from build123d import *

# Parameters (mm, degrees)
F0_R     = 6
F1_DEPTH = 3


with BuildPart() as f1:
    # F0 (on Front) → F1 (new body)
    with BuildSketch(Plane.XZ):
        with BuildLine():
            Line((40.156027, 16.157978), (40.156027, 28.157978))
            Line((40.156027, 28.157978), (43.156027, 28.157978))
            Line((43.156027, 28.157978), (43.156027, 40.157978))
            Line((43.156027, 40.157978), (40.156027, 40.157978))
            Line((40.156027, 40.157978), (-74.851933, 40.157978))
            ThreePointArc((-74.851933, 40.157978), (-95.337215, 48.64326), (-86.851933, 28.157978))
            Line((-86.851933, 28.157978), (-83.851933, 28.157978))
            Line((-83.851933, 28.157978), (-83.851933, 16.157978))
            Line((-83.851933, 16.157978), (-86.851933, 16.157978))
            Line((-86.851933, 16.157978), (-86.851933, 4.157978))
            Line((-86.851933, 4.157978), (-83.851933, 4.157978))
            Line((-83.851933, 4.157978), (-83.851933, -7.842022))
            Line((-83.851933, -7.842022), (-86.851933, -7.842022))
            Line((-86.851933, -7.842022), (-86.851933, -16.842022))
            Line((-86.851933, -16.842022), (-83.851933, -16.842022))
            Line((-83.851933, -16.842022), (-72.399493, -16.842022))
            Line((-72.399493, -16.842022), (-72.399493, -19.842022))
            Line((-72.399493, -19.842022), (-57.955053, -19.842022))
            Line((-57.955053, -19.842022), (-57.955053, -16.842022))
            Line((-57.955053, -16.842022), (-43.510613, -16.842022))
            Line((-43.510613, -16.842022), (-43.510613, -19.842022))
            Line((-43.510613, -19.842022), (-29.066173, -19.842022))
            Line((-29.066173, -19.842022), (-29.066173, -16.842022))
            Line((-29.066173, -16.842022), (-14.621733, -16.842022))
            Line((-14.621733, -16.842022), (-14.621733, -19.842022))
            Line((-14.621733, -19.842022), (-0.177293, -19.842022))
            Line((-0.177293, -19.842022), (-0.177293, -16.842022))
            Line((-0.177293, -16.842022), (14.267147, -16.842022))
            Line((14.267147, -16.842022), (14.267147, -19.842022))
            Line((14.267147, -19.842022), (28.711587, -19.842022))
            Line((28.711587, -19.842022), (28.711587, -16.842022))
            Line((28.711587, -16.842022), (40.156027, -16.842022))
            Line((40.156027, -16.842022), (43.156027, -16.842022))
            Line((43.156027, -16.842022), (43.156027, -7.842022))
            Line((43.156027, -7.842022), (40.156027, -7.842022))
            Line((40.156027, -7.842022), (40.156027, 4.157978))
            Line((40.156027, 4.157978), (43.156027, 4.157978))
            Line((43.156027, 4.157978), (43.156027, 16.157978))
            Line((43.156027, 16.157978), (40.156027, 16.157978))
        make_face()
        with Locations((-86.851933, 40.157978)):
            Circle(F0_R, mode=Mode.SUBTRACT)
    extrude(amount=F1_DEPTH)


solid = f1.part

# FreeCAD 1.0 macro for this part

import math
import FreeCAD as App
import Part
import Sketcher

V = App.Vector

doc = App.newDocument("Part")
body = doc.addObject("PartDesign::Body", "Body")

# Sketch on XZ plane
sketch1 = doc.addObject("Sketcher::SketchObject", "Sketch")
body.addObject(sketch1)
sketch1.AttachmentSupport = (doc.XZ_Plane, [""])
sketch1.MapMode = "FlatFace"
sketch1.addGeometry([
    Part.LineSegment(V(40.156027, 16.157978, 0), V(40.156027, 28.157978, 0)),  # 0
    Part.LineSegment(V(40.156027, 28.157978, 0), V(43.156027, 28.157978, 0)),  # 1
    Part.LineSegment(V(43.156027, 28.157978, 0), V(43.156027, 40.157978, 0)),  # 2
    Part.LineSegment(V(43.156027, 40.157978, 0), V(-74.851933, 40.157978, 0)),  # 3
    Part.ArcOfCircle(Part.Circle(V(-86.851933, 40.157978, 0), V(0, 0, 1), 12), math.radians(-0.000002), math.radians(270.000002)),  # 4
    Part.LineSegment(V(-86.851933, 28.157978, 0), V(-83.851933, 28.157978, 0)),  # 5
    Part.LineSegment(V(-83.851933, 28.157978, 0), V(-83.851933, 16.157978, 0)),  # 6
    Part.LineSegment(V(-83.851933, 16.157978, 0), V(-86.851933, 16.157978, 0)),  # 7
    Part.LineSegment(V(-86.851933, 16.157978, 0), V(-86.851933, 4.157978, 0)),  # 8
    Part.LineSegment(V(-86.851933, 4.157978, 0), V(-83.851933, 4.157978, 0)),  # 9
    Part.LineSegment(V(-83.851933, 4.157978, 0), V(-83.851933, -7.842022, 0)),  # 10
    Part.LineSegment(V(-83.851933, -7.842022, 0), V(-86.851933, -7.842022, 0)),  # 11
    Part.LineSegment(V(-86.851933, -7.842022, 0), V(-86.851933, -16.842022, 0)),  # 12
    Part.LineSegment(V(-86.851933, -16.842022, 0), V(-72.399493, -16.842022, 0)),  # 13
    Part.LineSegment(V(-72.399493, -16.842022, 0), V(-72.399493, -19.842022, 0)),  # 14
    Part.LineSegment(V(-72.399493, -19.842022, 0), V(-57.955053, -19.842022, 0)),  # 15
    Part.LineSegment(V(-57.955053, -19.842022, 0), V(-57.955053, -16.842022, 0)),  # 16
    Part.LineSegment(V(-57.955053, -16.842022, 0), V(-43.510613, -16.842022, 0)),  # 17
    Part.LineSegment(V(-43.510613, -16.842022, 0), V(-43.510613, -19.842022, 0)),  # 18
    Part.LineSegment(V(-43.510613, -19.842022, 0), V(-29.066173, -19.842022, 0)),  # 19
    Part.LineSegment(V(-29.066173, -19.842022, 0), V(-29.066173, -16.842022, 0)),  # 20
    Part.LineSegment(V(-29.066173, -16.842022, 0), V(-14.621733, -16.842022, 0)),  # 21
    Part.LineSegment(V(-14.621733, -16.842022, 0), V(-14.621733, -19.842022, 0)),  # 22
    Part.LineSegment(V(-14.621733, -19.842022, 0), V(-0.177293, -19.842022, 0)),  # 23
    Part.LineSegment(V(-0.177293, -19.842022, 0), V(-0.177293, -16.842022, 0)),  # 24
    Part.LineSegment(V(-0.177293, -16.842022, 0), V(14.267147, -16.842022, 0)),  # 25
    Part.LineSegment(V(14.267147, -16.842022, 0), V(14.267147, -19.842022, 0)),  # 26
    Part.LineSegment(V(14.267147, -19.842022, 0), V(28.711587, -19.842022, 0)),  # 27
    Part.LineSegment(V(28.711587, -19.842022, 0), V(28.711587, -16.842022, 0)),  # 28
    Part.LineSegment(V(28.711587, -16.842022, 0), V(43.156027, -16.842022, 0)),  # 29
    Part.LineSegment(V(43.156027, -16.842022, 0), V(43.156027, -7.842022, 0)),  # 30
    Part.LineSegment(V(43.156027, -7.842022, 0), V(40.156027, -7.842022, 0)),  # 31
    Part.LineSegment(V(40.156027, -7.842022, 0), V(40.156027, 4.157978, 0)),  # 32
    Part.LineSegment(V(40.156027, 4.157978, 0), V(43.156027, 4.157978, 0)),  # 33
    Part.LineSegment(V(43.156027, 4.157978, 0), V(43.156027, 16.157978, 0)),  # 34
    Part.LineSegment(V(43.156027, 16.157978, 0), V(40.156027, 16.157978, 0)),  # 35
    Part.Circle(V(-86.851933, 40.157978, 0), V(0, 0, 1), 6),  # 36
], False)
sketch1.addConstraint([
    Sketcher.Constraint("Coincident", 0, 2, 1, 1),
    Sketcher.Constraint("Coincident", 1, 2, 2, 1),
    Sketcher.Constraint("Coincident", 2, 2, 3, 1),
    Sketcher.Constraint("Coincident", 3, 2, 4, 1),
    Sketcher.Constraint("Tangent", 4, 2, 5, 1),
    Sketcher.Constraint("Coincident", 5, 2, 6, 1),
    Sketcher.Constraint("Coincident", 6, 2, 7, 1),
    Sketcher.Constraint("Coincident", 7, 2, 8, 1),
    Sketcher.Constraint("Coincident", 8, 2, 9, 1),
    Sketcher.Constraint("Coincident", 9, 2, 10, 1),
    Sketcher.Constraint("Coincident", 10, 2, 11, 1),
    Sketcher.Constraint("Coincident", 11, 2, 12, 1),
    Sketcher.Constraint("Coincident", 12, 2, 13, 1),
    Sketcher.Constraint("Coincident", 13, 2, 14, 1),
    Sketcher.Constraint("Coincident", 14, 2, 15, 1),
    Sketcher.Constraint("Coincident", 15, 2, 16, 1),
    Sketcher.Constraint("Coincident", 16, 2, 17, 1),
    Sketcher.Constraint("Coincident", 17, 2, 18, 1),
    Sketcher.Constraint("Coincident", 18, 2, 19, 1),
    Sketcher.Constraint("Coincident", 19, 2, 20, 1),
    Sketcher.Constraint("Coincident", 20, 2, 21, 1),
    Sketcher.Constraint("Coincident", 21, 2, 22, 1),
    Sketcher.Constraint("Coincident", 22, 2, 23, 1),
    Sketcher.Constraint("Coincident", 23, 2, 24, 1),
    Sketcher.Constraint("Coincident", 24, 2, 25, 1),
    Sketcher.Constraint("Coincident", 25, 2, 26, 1),
    Sketcher.Constraint("Coincident", 26, 2, 27, 1),
    Sketcher.Constraint("Coincident", 27, 2, 28, 1),
    Sketcher.Constraint("Coincident", 28, 2, 29, 1),
    Sketcher.Constraint("Coincident", 29, 2, 30, 1),
    Sketcher.Constraint("Coincident", 30, 2, 31, 1),
    Sketcher.Constraint("Coincident", 31, 2, 32, 1),
    Sketcher.Constraint("Coincident", 32, 2, 33, 1),
    Sketcher.Constraint("Coincident", 33, 2, 34, 1),
    Sketcher.Constraint("Coincident", 34, 2, 35, 1),
    Sketcher.Constraint("Coincident", 35, 2, 0, 1),
    Sketcher.Constraint("Vertical", 0),
    Sketcher.Constraint("Horizontal", 1),
    Sketcher.Constraint("Vertical", 2),
    Sketcher.Constraint("Horizontal", 3),
    Sketcher.Constraint("Horizontal", 5),
    Sketcher.Constraint("Vertical", 6),
    Sketcher.Constraint("Horizontal", 7),
    Sketcher.Constraint("Vertical", 8),
    Sketcher.Constraint("Horizontal", 9),
    Sketcher.Constraint("Vertical", 10),
    Sketcher.Constraint("Horizontal", 11),
    Sketcher.Constraint("Vertical", 12),
    Sketcher.Constraint("Horizontal", 13),
    Sketcher.Constraint("Vertical", 14),
    Sketcher.Constraint("Horizontal", 15),
    Sketcher.Constraint("Vertical", 16),
    Sketcher.Constraint("Horizontal", 17),
    Sketcher.Constraint("Vertical", 18),
    Sketcher.Constraint("Horizontal", 19),
    Sketcher.Constraint("Vertical", 20),
    Sketcher.Constraint("Horizontal", 21),
    Sketcher.Constraint("Vertical", 22),
    Sketcher.Constraint("Horizontal", 23),
    Sketcher.Constraint("Vertical", 24),
    Sketcher.Constraint("Horizontal", 25),
    Sketcher.Constraint("Vertical", 26),
    Sketcher.Constraint("Horizontal", 27),
    Sketcher.Constraint("Vertical", 28),
    Sketcher.Constraint("Horizontal", 29),
    Sketcher.Constraint("Vertical", 30),
    Sketcher.Constraint("Horizontal", 31),
    Sketcher.Constraint("Vertical", 32),
    Sketcher.Constraint("Horizontal", 33),
    Sketcher.Constraint("Vertical", 34),
    Sketcher.Constraint("Horizontal", 35),
    Sketcher.Constraint("Coincident", 36, 3, 4, 3),
    Sketcher.Constraint("Horizontal", 36, 3, 2, 2),
    Sketcher.Constraint("Horizontal", 1, 2, 4, 2),
    Sketcher.Constraint("Horizontal", 13, 2, 16, 2),
    Sketcher.Constraint("Horizontal", 15, 2, 18, 2),
    Sketcher.Constraint("Horizontal", 17, 2, 20, 2),
    Sketcher.Constraint("Horizontal", 19, 2, 22, 2),
    Sketcher.Constraint("Horizontal", 21, 2, 24, 2),
    Sketcher.Constraint("Horizontal", 23, 2, 26, 2),
    Sketcher.Constraint("Horizontal", 25, 2, 28, 2),
    Sketcher.Constraint("Horizontal", 11, 2, 30, 2),
    Sketcher.Constraint("Horizontal", 9, 2, 32, 2),
    Sketcher.Constraint("Horizontal", 7, 2, 34, 2),
    Sketcher.Constraint("Vertical", 4, 2, 7, 2),
    Sketcher.Constraint("Vertical", 6, 2, 9, 2),
    Sketcher.Constraint("Vertical", 8, 2, 11, 2),
    Sketcher.Constraint("Vertical", 2, 2, 29, 2),
    Sketcher.Constraint("Vertical", 0, 2, 31, 2),
    Sketcher.Constraint("Vertical", 30, 2, 33, 2),
    Sketcher.Constraint("Equal", 1, 5),
    Sketcher.Constraint("Equal", 15, 17),
    Sketcher.Constraint("Equal", 17, 19),
    Sketcher.Constraint("Equal", 19, 21),
    Sketcher.Constraint("Equal", 21, 23),
    Sketcher.Constraint("Equal", 23, 25),
    Sketcher.Constraint("Equal", 25, 27),
    Sketcher.Constraint("Equal", 27, 29),
    Sketcher.Constraint("Equal", 0, 2),
    Sketcher.Constraint("Equal", 6, 8),
    Sketcher.Constraint("Equal", 8, 10),
    Sketcher.Constraint("Equal", 35, 14),
    Sketcher.Constraint("Diameter", 36, 12.0),
    Sketcher.Constraint("Radius", 4, 12.0),
    Sketcher.Constraint("DistanceX", 1, 1, 1, 2, 3.0),
    Sketcher.Constraint("DistanceY", 12, 2, 12, 1, 9.0),
    Sketcher.Constraint("DistanceX", 3, 2, 3, 1, 118.00796),
    Sketcher.Constraint("DistanceX", 13, 1, 13, 2, 14.45244),
    Sketcher.Constraint("DistanceY", -1, 1, 4, 3, 40.157978),
    Sketcher.Constraint("DistanceX", 4, 3, -1, 1, 86.851933),
])
pad1 = doc.addObject("PartDesign::Pad", "Pad")
body.addObject(pad1)
pad1.Profile = sketch1
pad1.Length = 3

doc.recompute()
